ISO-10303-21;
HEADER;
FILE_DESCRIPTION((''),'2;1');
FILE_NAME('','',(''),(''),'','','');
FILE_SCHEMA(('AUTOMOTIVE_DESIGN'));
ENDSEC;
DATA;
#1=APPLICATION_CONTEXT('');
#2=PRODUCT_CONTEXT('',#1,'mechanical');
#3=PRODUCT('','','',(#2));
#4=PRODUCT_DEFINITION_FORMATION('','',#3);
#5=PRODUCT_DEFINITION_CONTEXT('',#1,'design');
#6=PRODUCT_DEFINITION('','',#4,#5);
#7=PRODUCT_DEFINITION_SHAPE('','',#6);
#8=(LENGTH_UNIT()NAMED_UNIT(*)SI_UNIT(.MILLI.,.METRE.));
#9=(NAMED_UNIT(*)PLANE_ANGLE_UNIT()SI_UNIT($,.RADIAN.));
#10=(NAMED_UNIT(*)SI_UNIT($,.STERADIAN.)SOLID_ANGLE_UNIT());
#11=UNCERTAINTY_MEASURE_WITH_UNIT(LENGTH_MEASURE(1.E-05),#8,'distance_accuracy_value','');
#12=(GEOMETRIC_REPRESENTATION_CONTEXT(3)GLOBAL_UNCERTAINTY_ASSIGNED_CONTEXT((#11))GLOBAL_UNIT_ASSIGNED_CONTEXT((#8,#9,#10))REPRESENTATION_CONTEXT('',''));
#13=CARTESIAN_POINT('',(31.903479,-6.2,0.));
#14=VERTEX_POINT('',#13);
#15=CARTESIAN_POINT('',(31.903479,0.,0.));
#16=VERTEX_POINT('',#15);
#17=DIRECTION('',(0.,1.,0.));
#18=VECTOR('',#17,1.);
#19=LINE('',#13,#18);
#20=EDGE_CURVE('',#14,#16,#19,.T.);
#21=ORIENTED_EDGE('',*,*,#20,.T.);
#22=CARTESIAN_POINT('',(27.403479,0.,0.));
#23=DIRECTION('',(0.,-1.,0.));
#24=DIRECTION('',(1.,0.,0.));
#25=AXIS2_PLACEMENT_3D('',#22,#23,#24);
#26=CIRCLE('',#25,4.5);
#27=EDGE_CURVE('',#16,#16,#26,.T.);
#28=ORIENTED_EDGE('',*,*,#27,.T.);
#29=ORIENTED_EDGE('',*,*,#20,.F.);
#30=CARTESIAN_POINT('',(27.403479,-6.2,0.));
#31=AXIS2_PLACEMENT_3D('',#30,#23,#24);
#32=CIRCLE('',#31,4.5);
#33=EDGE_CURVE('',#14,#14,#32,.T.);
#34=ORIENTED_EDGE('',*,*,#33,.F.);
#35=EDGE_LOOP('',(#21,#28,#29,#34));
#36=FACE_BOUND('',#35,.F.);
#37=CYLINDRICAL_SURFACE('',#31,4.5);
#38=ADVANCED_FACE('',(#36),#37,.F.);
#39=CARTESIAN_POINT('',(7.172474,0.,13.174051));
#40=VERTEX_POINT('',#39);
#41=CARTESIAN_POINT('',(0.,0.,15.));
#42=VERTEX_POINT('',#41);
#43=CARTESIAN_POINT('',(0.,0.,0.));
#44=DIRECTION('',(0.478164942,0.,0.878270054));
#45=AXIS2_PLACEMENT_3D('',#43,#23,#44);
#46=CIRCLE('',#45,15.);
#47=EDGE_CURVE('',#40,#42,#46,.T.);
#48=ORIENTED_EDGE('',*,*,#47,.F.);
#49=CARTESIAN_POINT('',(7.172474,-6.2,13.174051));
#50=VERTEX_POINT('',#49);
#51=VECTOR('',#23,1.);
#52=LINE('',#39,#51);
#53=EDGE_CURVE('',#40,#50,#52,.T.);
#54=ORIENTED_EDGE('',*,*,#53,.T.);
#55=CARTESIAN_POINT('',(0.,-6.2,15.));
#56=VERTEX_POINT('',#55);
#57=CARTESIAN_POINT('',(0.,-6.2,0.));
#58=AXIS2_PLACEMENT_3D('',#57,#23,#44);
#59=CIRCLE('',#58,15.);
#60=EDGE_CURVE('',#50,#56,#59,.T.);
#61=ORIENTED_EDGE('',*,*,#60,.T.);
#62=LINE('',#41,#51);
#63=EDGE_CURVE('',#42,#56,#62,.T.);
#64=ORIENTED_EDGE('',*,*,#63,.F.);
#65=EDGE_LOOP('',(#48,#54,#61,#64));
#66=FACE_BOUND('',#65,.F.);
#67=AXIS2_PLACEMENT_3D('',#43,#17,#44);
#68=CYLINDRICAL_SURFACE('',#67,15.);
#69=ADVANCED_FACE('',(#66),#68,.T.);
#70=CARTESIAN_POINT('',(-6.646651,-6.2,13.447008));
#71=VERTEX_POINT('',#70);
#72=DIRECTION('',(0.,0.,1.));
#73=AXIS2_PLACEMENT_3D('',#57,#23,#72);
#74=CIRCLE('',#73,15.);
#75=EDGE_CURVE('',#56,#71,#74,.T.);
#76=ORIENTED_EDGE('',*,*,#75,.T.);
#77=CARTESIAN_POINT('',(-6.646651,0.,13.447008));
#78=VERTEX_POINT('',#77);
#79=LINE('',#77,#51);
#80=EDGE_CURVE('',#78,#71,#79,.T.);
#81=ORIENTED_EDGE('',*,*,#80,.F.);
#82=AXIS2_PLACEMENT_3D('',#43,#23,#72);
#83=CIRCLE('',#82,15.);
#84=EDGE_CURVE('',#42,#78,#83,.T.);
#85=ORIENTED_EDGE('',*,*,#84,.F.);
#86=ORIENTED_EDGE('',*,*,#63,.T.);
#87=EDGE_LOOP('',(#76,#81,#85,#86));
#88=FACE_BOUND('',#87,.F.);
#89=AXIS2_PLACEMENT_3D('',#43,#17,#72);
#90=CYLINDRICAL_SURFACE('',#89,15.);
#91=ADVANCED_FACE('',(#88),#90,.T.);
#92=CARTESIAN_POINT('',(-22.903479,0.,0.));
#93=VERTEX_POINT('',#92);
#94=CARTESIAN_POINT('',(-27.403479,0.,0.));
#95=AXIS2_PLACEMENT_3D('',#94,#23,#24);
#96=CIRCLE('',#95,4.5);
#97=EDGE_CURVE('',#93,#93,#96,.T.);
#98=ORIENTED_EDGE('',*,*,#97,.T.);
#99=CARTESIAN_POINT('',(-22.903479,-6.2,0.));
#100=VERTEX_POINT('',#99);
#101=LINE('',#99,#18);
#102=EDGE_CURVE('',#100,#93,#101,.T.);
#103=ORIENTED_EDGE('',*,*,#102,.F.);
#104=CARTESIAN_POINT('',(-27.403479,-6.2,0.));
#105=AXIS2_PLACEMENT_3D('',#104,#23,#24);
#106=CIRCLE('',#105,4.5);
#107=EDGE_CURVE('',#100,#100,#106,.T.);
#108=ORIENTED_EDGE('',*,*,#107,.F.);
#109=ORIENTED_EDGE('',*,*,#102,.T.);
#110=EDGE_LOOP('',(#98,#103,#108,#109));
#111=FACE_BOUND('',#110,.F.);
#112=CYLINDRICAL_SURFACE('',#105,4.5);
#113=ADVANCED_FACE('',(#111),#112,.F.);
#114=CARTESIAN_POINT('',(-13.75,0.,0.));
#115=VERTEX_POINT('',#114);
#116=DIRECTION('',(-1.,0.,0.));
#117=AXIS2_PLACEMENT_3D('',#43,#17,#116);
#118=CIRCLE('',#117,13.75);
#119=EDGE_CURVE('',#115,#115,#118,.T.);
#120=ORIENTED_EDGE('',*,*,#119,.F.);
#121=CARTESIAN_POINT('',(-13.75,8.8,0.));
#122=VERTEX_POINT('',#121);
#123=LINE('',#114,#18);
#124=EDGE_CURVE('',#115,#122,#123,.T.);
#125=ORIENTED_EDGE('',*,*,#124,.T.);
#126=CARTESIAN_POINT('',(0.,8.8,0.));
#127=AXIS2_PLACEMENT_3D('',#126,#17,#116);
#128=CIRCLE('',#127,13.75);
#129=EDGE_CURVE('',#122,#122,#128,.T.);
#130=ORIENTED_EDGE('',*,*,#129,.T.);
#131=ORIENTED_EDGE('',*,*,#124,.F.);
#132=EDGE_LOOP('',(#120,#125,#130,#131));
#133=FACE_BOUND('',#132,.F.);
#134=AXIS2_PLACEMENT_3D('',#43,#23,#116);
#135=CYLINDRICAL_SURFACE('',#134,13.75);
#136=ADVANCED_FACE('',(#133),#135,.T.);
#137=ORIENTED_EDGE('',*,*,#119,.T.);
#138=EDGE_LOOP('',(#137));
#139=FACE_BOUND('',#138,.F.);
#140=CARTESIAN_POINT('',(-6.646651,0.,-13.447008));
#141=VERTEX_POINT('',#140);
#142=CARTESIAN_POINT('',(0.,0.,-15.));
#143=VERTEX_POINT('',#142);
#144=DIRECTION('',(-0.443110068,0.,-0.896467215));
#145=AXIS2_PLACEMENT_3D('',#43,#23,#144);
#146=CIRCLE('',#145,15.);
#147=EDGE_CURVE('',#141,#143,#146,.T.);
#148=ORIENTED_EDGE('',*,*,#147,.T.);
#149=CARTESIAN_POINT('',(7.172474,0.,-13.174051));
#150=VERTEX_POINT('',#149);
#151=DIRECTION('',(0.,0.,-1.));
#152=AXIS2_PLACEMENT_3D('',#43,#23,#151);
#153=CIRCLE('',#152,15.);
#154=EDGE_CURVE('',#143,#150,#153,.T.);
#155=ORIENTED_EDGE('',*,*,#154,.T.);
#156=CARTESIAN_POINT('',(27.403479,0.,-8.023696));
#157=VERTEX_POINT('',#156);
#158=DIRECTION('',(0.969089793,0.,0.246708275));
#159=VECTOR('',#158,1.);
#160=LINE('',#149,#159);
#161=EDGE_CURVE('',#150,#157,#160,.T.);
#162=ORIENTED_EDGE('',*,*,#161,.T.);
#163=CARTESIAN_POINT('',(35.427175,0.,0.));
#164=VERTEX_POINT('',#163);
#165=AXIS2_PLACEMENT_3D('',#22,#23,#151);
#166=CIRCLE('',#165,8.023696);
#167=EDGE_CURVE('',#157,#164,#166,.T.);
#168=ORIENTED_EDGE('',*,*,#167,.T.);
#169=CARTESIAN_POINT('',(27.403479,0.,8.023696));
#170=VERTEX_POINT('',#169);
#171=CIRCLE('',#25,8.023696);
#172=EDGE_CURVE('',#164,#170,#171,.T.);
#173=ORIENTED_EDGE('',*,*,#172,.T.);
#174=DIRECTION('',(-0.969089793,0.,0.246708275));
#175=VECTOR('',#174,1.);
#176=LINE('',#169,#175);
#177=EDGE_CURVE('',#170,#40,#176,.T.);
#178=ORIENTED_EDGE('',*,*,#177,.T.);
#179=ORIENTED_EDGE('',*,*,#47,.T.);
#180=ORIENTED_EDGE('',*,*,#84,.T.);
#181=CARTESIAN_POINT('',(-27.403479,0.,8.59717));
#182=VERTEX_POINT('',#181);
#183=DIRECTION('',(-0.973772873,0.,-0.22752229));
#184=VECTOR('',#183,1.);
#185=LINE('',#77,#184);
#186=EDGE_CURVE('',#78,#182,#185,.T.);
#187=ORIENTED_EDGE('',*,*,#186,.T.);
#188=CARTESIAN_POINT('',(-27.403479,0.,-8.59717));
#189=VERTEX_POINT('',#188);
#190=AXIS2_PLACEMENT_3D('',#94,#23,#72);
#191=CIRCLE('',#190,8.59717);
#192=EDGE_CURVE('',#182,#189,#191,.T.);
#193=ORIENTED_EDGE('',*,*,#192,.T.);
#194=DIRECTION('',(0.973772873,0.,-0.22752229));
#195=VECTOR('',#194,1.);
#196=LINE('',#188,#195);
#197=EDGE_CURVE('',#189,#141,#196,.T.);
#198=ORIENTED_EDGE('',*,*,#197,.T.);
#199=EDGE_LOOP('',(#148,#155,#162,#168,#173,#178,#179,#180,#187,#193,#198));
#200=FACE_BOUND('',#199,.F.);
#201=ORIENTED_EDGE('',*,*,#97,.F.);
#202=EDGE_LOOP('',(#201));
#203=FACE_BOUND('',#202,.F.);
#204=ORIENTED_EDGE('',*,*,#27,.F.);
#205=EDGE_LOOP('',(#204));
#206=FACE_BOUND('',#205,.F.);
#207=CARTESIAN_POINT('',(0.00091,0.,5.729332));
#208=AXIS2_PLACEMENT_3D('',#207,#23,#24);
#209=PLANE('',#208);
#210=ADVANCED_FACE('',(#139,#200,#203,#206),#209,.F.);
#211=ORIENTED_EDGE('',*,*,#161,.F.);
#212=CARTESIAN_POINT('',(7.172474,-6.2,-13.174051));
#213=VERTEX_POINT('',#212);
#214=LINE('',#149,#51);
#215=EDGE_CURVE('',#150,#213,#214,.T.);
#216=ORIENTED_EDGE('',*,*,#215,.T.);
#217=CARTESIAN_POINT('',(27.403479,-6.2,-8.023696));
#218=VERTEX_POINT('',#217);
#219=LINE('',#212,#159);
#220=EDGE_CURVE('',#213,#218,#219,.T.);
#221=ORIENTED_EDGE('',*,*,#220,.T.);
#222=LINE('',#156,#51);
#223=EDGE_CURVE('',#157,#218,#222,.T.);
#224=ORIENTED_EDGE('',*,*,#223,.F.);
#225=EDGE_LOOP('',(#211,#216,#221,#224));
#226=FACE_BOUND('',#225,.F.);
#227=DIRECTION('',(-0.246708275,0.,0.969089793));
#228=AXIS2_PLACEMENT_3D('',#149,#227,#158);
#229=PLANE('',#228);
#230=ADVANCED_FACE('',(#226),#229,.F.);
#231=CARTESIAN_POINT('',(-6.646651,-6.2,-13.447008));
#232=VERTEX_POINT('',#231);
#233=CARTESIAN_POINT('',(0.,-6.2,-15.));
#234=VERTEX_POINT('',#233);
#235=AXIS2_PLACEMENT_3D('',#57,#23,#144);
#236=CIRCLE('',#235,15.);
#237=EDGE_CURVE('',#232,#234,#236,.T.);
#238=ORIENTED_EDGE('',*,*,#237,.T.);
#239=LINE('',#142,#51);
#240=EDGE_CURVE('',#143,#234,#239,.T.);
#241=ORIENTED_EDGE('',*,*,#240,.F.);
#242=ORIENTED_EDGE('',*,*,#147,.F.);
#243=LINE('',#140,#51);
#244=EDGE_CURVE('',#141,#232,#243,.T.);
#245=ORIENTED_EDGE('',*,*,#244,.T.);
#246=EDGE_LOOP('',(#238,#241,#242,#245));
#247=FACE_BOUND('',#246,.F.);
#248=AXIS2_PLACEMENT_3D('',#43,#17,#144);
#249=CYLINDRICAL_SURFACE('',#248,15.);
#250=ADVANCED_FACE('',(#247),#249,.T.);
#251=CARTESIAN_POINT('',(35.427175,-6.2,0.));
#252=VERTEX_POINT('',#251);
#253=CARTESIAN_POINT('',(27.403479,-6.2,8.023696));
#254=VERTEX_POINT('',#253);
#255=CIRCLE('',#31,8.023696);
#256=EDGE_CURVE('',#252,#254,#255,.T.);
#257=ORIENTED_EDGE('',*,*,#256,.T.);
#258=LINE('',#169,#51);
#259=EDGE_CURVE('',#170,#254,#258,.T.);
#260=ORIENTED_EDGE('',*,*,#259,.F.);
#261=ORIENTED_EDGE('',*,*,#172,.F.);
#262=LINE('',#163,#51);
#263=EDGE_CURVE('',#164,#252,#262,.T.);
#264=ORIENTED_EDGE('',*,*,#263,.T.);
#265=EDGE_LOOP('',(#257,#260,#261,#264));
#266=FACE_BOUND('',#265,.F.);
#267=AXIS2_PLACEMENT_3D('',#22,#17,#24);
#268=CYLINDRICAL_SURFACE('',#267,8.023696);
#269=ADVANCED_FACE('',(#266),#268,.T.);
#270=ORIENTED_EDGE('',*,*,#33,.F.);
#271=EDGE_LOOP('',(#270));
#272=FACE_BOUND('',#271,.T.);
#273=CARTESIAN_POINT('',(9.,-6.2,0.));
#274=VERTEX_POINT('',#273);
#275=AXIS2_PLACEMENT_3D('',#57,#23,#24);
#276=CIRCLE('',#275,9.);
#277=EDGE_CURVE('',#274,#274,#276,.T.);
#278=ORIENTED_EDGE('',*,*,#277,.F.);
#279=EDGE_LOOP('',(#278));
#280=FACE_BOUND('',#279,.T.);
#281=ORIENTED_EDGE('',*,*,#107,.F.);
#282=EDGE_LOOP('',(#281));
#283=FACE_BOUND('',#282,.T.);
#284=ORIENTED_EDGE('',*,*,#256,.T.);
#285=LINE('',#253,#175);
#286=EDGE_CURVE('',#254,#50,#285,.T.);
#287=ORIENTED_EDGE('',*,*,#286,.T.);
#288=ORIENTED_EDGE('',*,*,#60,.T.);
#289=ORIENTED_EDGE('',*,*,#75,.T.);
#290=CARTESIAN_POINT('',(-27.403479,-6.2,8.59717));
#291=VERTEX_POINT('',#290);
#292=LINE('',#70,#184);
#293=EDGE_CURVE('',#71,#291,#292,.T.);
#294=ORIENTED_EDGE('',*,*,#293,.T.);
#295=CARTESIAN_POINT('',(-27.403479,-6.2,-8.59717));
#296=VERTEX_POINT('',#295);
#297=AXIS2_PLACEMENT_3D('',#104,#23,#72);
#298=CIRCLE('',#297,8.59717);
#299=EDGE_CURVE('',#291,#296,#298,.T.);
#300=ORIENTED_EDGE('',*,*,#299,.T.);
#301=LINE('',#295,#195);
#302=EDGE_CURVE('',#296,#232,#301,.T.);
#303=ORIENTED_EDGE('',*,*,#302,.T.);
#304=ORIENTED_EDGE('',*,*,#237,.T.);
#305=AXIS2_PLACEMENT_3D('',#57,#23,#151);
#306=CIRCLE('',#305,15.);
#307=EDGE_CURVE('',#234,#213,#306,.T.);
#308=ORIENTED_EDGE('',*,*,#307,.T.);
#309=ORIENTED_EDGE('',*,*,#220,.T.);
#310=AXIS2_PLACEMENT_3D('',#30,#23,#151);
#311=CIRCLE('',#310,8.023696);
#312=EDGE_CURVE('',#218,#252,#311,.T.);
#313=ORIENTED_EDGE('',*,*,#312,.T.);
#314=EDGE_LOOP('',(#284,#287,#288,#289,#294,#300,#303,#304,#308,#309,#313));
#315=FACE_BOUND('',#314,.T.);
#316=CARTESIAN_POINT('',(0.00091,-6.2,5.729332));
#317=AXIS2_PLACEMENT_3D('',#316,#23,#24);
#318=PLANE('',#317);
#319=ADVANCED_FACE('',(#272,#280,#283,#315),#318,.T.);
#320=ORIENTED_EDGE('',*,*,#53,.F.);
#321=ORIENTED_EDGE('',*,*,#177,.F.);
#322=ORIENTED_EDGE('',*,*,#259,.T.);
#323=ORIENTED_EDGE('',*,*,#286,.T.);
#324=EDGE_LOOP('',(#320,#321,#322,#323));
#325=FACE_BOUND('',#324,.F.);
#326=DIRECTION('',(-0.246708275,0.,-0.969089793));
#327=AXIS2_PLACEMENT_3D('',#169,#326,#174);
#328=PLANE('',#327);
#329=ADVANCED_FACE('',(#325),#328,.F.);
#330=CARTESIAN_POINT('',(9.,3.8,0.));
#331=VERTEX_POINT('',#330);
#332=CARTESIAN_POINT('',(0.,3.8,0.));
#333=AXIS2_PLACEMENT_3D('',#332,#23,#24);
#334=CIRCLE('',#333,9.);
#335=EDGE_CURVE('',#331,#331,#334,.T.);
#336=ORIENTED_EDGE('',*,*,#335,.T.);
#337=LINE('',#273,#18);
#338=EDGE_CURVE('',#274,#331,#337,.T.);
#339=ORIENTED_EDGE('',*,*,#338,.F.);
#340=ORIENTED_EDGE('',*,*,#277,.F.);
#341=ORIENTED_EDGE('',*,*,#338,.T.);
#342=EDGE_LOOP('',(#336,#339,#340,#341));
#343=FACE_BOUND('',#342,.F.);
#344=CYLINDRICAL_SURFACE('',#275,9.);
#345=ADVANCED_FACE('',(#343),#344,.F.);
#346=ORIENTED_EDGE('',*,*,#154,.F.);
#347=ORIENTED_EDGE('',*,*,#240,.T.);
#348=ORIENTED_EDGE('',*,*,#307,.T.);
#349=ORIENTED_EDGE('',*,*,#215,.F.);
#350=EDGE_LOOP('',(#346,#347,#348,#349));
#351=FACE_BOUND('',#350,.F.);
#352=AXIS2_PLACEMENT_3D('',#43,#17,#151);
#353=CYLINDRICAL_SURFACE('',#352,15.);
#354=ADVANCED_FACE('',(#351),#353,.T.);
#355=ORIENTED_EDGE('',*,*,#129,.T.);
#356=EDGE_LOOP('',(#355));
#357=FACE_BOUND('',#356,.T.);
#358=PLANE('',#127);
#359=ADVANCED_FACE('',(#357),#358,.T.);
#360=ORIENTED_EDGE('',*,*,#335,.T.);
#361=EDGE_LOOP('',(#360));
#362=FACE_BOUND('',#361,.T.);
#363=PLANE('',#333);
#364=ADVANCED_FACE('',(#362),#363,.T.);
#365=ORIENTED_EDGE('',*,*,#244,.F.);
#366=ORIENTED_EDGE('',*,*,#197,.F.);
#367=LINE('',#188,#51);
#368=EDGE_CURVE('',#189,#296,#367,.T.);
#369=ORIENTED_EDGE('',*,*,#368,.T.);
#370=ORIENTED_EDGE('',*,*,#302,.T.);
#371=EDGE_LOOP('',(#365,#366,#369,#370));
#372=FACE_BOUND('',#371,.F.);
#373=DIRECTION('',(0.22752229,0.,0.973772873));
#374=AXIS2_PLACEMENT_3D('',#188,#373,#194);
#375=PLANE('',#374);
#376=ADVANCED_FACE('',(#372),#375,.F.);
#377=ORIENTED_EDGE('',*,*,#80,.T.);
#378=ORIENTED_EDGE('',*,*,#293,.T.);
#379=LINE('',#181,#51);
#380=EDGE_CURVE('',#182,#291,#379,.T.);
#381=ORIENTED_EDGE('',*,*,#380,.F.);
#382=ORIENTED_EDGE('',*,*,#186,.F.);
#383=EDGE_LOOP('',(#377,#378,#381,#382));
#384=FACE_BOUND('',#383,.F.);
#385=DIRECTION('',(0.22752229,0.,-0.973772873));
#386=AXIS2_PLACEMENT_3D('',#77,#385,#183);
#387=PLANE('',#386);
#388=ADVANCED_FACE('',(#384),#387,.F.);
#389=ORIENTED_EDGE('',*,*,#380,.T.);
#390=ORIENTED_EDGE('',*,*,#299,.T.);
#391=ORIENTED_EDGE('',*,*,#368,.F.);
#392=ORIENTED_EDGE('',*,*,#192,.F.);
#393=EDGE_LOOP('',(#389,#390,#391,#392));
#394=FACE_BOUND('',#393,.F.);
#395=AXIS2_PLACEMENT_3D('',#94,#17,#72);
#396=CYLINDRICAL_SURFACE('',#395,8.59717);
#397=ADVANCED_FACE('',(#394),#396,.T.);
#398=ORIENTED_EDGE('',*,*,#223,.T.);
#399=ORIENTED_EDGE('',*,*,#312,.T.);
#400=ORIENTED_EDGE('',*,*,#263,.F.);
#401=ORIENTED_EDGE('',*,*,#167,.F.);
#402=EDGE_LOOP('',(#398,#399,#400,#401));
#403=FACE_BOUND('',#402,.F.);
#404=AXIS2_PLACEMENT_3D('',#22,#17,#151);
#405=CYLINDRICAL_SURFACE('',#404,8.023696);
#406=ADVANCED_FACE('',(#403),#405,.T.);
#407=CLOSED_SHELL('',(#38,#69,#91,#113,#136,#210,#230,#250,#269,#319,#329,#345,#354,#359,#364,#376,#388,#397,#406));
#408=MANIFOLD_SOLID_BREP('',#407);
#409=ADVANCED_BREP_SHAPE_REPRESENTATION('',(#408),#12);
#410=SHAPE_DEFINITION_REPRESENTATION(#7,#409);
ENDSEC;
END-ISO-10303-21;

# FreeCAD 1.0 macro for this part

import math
import FreeCAD as App
import Part
import Sketcher

doc = App.newDocument("Part")
body = doc.addObject("PartDesign::Body", "Body")

sketch1 = body.newObject("Sketcher::SketchObject", "Sketch")
sketch1.AttachmentSupport = (doc.getObject("XZ_Plane"), [""])
sketch1.MapMode = "FlatFace"
sketch1.addGeometry(Part.ArcOfCircle(Part.Circle(App.Vector(0, 0, 0), App.Vector(0, 0, 1), 15), math.radians(-116.302485), math.radians(-90)), False)
sketch1.addGeometry(Part.ArcOfCircle(Part.Circle(App.Vector(0, 0, 0), App.Vector(0, 0, 1), 15), math.radians(-90), math.radians(-61.43438)), False)
sketch1.addGeometry(Part.LineSegment(App.Vector(7.172474, -13.174051, 0), App.Vector(27.403479, -8.023696, 0)), False)
sketch1.addGeometry(Part.ArcOfCircle(Part.Circle(App.Vector(27.403479, 0, 0), App.Vector(0, 0, 1), 8.023696), math.radians(-90), math.radians(0)), False)
sketch1.addGeometry(Part.ArcOfCircle(Part.Circle(App.Vector(27.403479, 0, 0), App.Vector(0, 0, 1), 8.023696), math.radians(0), math.radians(90)), False)
sketch1.addGeometry(Part.LineSegment(App.Vector(27.403479, 8.023696, 0), App.Vector(7.172474, 13.174051, 0)), False)
sketch1.addGeometry(Part.ArcOfCircle(Part.Circle(App.Vector(0, 0, 0), App.Vector(0, 0, 1), 15), math.radians(61.43438), math.radians(90)), False)
sketch1.addGeometry(Part.ArcOfCircle(Part.Circle(App.Vector(0, 0, 0), App.Vector(0, 0, 1), 15), math.radians(90), math.radians(116.302485)), False)
sketch1.addGeometry(Part.LineSegment(App.Vector(-6.646651, 13.447008, 0), App.Vector(-27.403479, 8.59717, 0)), False)
sketch1.addGeometry(Part.ArcOfCircle(Part.Circle(App.Vector(-27.403479, 0, 0), App.Vector(0, 0, 1), 8.59717), math.radians(90), math.radians(270)), False)
sketch1.addGeometry(Part.LineSegment(App.Vector(-27.403479, -8.59717, 0), App.Vector(-6.646651, -13.447008, 0)), False)
sketch1.addConstraint(Sketcher.Constraint("Tangent", 0, 2, 1, 1))
sketch1.addConstraint(Sketcher.Constraint("Coincident", 1, 2, 2, 1))
sketch1.addConstraint(Sketcher.Constraint("Coincident", 2, 2, 3, 1))
sketch1.addConstraint(Sketcher.Constraint("Tangent", 3, 2, 4, 1))
sketch1.addConstraint(Sketcher.Constraint("Coincident", 4, 2, 5, 1))
sketch1.addConstraint(Sketcher.Constraint("Coincident", 5, 2, 6, 1))
sketch1.addConstraint(Sketcher.Constraint("Tangent", 6, 2, 7, 1))
sketch1.addConstraint(Sketcher.Constraint("Coincident", 7, 2, 8, 1))
sketch1.addConstraint(Sketcher.Constraint("Coincident", 8, 2, 9, 1))
sketch1.addConstraint(Sketcher.Constraint("Coincident", 9, 2, 10, 1))
sketch1.addConstraint(Sketcher.Constraint("Coincident", 10, 2, 0, 1))
sketch1.addConstraint(Sketcher.Constraint("Coincident", 0, 3, -1, 1))
sketch1.addConstraint(Sketcher.Constraint("Coincident", 6, 3, -1, 1))
sketch1.addConstraint(Sketcher.Constraint("Equal", 0, 1))
sketch1.addConstraint(Sketcher.Constraint("Equal", 3, 4))
sketch1.addConstraint(Sketcher.Constraint("Equal", 1, 6))
sketch1.addConstraint(Sketcher.Constraint("Equal", 6, 7))
sketch1.addConstraint(Sketcher.Constraint("Symmetric", 3, 3, 9, 3, -1, 1))
sketch1.addConstraint(Sketcher.Constraint("Symmetric", 2, 2, 4, 2, -1))
sketch1.addConstraint(Sketcher.Constraint("PointOnObject", 0, 2, -2))
sketch1.addConstraint(Sketcher.Constraint("PointOnObject", 3, 2, -1))
sketch1.addConstraint(Sketcher.Constraint("PointOnObject", 6, 2, -2))
sketch1.addConstraint(Sketcher.Constraint("Vertical", 4, 3, 2, 2))
sketch1.addConstraint(Sketcher.Constraint("Vertical", 1, 2, 5, 2))
sketch1.addConstraint(Sketcher.Constraint("Vertical", 9, 3, 8, 2))
sketch1.addConstraint(Sketcher.Constraint("Vertical", 8, 2, 9, 2))
sketch1.addConstraint(Sketcher.Constraint("Vertical", 7, 2, 10, 2))
sketch1.addConstraint(Sketcher.Constraint("Radius", 0, 15.0))
sketch1.addConstraint(Sketcher.Constraint("Radius", 9, 8.59717))
sketch1.addConstraint(Sketcher.Constraint("Radius", 3, 8.023696))
sketch1.addConstraint(Sketcher.Constraint("DistanceX", 1, 2, 3, 2, 28.254701))
sketch1.addConstraint(Sketcher.Constraint("DistanceX", -1, 1, 3, 3, 27.403479))
sketch1.addConstraint(Sketcher.Constraint("DistanceX", 7, 2, -1, 1, 6.646651))
pad1 = body.newObject("PartDesign::Pad", "Pad")
pad1.Profile = sketch1
pad1.Length = 6.2

sketch2 = body.newObject("Sketcher::SketchObject", "Sketch001")
sketch2.AttachmentSupport = (doc.getObject("XZ_Plane"), [""])
sketch2.MapMode = "FlatFace"
sketch2.addGeometry(Part.Circle(App.Vector(0, 0, 0), App.Vector(0, 0, 1), 13.75), False)
sketch2.addConstraint(Sketcher.Constraint("Coincident", 0, 3, -1, 1))
sketch2.addConstraint(Sketcher.Constraint("Diameter", 0, 27.5))
pad2 = body.newObject("PartDesign::Pad", "Pad001")
pad2.Profile = sketch2
pad2.Length = 8.8
pad2.Reversed = True

sketch3 = body.newObject("Sketcher::SketchObject", "Sketch002")
sketch3.AttachmentSupport = (doc.getObject("XZ_Plane"), [""])
sketch3.MapMode = "FlatFace"
sketch3.AttachmentOffset = App.Placement(App.Vector(0, 0, 6.2), App.Rotation())
sketch3.addGeometry(Part.Circle(App.Vector(27.403479, 0, 0), App.Vector(0, 0, 1), 4.5), False)
sketch3.addGeometry(Part.Circle(App.Vector(0, 0, 0), App.Vector(0, 0, 1), 9), False)
sketch3.addGeometry(Part.Circle(App.Vector(-27.403479, 0, 0), App.Vector(0, 0, 1), 4.5), False)
sketch3.addConstraint(Sketcher.Constraint("Coincident", 1, 3, -1, 1))
sketch3.addConstraint(Sketcher.Constraint("Equal", 0, 2))
sketch3.addConstraint(Sketcher.Constraint("Symmetric", 0, 3, 2, 3, -1, 1))
sketch3.addConstraint(Sketcher.Constraint("PointOnObject", 0, 3, -1))
sketch3.addConstraint(Sketcher.Constraint("Diameter", 0, 9.0))
sketch3.addConstraint(Sketcher.Constraint("Diameter", 1, 18.0))
sketch3.addConstraint(Sketcher.Constraint("DistanceX", -1, 1, 0, 3, 27.403479))
pocket1 = body.newObject("PartDesign::Pocket", "Pocket")
pocket1.Profile = sketch3
pocket1.Length = 10

doc.recompute()
